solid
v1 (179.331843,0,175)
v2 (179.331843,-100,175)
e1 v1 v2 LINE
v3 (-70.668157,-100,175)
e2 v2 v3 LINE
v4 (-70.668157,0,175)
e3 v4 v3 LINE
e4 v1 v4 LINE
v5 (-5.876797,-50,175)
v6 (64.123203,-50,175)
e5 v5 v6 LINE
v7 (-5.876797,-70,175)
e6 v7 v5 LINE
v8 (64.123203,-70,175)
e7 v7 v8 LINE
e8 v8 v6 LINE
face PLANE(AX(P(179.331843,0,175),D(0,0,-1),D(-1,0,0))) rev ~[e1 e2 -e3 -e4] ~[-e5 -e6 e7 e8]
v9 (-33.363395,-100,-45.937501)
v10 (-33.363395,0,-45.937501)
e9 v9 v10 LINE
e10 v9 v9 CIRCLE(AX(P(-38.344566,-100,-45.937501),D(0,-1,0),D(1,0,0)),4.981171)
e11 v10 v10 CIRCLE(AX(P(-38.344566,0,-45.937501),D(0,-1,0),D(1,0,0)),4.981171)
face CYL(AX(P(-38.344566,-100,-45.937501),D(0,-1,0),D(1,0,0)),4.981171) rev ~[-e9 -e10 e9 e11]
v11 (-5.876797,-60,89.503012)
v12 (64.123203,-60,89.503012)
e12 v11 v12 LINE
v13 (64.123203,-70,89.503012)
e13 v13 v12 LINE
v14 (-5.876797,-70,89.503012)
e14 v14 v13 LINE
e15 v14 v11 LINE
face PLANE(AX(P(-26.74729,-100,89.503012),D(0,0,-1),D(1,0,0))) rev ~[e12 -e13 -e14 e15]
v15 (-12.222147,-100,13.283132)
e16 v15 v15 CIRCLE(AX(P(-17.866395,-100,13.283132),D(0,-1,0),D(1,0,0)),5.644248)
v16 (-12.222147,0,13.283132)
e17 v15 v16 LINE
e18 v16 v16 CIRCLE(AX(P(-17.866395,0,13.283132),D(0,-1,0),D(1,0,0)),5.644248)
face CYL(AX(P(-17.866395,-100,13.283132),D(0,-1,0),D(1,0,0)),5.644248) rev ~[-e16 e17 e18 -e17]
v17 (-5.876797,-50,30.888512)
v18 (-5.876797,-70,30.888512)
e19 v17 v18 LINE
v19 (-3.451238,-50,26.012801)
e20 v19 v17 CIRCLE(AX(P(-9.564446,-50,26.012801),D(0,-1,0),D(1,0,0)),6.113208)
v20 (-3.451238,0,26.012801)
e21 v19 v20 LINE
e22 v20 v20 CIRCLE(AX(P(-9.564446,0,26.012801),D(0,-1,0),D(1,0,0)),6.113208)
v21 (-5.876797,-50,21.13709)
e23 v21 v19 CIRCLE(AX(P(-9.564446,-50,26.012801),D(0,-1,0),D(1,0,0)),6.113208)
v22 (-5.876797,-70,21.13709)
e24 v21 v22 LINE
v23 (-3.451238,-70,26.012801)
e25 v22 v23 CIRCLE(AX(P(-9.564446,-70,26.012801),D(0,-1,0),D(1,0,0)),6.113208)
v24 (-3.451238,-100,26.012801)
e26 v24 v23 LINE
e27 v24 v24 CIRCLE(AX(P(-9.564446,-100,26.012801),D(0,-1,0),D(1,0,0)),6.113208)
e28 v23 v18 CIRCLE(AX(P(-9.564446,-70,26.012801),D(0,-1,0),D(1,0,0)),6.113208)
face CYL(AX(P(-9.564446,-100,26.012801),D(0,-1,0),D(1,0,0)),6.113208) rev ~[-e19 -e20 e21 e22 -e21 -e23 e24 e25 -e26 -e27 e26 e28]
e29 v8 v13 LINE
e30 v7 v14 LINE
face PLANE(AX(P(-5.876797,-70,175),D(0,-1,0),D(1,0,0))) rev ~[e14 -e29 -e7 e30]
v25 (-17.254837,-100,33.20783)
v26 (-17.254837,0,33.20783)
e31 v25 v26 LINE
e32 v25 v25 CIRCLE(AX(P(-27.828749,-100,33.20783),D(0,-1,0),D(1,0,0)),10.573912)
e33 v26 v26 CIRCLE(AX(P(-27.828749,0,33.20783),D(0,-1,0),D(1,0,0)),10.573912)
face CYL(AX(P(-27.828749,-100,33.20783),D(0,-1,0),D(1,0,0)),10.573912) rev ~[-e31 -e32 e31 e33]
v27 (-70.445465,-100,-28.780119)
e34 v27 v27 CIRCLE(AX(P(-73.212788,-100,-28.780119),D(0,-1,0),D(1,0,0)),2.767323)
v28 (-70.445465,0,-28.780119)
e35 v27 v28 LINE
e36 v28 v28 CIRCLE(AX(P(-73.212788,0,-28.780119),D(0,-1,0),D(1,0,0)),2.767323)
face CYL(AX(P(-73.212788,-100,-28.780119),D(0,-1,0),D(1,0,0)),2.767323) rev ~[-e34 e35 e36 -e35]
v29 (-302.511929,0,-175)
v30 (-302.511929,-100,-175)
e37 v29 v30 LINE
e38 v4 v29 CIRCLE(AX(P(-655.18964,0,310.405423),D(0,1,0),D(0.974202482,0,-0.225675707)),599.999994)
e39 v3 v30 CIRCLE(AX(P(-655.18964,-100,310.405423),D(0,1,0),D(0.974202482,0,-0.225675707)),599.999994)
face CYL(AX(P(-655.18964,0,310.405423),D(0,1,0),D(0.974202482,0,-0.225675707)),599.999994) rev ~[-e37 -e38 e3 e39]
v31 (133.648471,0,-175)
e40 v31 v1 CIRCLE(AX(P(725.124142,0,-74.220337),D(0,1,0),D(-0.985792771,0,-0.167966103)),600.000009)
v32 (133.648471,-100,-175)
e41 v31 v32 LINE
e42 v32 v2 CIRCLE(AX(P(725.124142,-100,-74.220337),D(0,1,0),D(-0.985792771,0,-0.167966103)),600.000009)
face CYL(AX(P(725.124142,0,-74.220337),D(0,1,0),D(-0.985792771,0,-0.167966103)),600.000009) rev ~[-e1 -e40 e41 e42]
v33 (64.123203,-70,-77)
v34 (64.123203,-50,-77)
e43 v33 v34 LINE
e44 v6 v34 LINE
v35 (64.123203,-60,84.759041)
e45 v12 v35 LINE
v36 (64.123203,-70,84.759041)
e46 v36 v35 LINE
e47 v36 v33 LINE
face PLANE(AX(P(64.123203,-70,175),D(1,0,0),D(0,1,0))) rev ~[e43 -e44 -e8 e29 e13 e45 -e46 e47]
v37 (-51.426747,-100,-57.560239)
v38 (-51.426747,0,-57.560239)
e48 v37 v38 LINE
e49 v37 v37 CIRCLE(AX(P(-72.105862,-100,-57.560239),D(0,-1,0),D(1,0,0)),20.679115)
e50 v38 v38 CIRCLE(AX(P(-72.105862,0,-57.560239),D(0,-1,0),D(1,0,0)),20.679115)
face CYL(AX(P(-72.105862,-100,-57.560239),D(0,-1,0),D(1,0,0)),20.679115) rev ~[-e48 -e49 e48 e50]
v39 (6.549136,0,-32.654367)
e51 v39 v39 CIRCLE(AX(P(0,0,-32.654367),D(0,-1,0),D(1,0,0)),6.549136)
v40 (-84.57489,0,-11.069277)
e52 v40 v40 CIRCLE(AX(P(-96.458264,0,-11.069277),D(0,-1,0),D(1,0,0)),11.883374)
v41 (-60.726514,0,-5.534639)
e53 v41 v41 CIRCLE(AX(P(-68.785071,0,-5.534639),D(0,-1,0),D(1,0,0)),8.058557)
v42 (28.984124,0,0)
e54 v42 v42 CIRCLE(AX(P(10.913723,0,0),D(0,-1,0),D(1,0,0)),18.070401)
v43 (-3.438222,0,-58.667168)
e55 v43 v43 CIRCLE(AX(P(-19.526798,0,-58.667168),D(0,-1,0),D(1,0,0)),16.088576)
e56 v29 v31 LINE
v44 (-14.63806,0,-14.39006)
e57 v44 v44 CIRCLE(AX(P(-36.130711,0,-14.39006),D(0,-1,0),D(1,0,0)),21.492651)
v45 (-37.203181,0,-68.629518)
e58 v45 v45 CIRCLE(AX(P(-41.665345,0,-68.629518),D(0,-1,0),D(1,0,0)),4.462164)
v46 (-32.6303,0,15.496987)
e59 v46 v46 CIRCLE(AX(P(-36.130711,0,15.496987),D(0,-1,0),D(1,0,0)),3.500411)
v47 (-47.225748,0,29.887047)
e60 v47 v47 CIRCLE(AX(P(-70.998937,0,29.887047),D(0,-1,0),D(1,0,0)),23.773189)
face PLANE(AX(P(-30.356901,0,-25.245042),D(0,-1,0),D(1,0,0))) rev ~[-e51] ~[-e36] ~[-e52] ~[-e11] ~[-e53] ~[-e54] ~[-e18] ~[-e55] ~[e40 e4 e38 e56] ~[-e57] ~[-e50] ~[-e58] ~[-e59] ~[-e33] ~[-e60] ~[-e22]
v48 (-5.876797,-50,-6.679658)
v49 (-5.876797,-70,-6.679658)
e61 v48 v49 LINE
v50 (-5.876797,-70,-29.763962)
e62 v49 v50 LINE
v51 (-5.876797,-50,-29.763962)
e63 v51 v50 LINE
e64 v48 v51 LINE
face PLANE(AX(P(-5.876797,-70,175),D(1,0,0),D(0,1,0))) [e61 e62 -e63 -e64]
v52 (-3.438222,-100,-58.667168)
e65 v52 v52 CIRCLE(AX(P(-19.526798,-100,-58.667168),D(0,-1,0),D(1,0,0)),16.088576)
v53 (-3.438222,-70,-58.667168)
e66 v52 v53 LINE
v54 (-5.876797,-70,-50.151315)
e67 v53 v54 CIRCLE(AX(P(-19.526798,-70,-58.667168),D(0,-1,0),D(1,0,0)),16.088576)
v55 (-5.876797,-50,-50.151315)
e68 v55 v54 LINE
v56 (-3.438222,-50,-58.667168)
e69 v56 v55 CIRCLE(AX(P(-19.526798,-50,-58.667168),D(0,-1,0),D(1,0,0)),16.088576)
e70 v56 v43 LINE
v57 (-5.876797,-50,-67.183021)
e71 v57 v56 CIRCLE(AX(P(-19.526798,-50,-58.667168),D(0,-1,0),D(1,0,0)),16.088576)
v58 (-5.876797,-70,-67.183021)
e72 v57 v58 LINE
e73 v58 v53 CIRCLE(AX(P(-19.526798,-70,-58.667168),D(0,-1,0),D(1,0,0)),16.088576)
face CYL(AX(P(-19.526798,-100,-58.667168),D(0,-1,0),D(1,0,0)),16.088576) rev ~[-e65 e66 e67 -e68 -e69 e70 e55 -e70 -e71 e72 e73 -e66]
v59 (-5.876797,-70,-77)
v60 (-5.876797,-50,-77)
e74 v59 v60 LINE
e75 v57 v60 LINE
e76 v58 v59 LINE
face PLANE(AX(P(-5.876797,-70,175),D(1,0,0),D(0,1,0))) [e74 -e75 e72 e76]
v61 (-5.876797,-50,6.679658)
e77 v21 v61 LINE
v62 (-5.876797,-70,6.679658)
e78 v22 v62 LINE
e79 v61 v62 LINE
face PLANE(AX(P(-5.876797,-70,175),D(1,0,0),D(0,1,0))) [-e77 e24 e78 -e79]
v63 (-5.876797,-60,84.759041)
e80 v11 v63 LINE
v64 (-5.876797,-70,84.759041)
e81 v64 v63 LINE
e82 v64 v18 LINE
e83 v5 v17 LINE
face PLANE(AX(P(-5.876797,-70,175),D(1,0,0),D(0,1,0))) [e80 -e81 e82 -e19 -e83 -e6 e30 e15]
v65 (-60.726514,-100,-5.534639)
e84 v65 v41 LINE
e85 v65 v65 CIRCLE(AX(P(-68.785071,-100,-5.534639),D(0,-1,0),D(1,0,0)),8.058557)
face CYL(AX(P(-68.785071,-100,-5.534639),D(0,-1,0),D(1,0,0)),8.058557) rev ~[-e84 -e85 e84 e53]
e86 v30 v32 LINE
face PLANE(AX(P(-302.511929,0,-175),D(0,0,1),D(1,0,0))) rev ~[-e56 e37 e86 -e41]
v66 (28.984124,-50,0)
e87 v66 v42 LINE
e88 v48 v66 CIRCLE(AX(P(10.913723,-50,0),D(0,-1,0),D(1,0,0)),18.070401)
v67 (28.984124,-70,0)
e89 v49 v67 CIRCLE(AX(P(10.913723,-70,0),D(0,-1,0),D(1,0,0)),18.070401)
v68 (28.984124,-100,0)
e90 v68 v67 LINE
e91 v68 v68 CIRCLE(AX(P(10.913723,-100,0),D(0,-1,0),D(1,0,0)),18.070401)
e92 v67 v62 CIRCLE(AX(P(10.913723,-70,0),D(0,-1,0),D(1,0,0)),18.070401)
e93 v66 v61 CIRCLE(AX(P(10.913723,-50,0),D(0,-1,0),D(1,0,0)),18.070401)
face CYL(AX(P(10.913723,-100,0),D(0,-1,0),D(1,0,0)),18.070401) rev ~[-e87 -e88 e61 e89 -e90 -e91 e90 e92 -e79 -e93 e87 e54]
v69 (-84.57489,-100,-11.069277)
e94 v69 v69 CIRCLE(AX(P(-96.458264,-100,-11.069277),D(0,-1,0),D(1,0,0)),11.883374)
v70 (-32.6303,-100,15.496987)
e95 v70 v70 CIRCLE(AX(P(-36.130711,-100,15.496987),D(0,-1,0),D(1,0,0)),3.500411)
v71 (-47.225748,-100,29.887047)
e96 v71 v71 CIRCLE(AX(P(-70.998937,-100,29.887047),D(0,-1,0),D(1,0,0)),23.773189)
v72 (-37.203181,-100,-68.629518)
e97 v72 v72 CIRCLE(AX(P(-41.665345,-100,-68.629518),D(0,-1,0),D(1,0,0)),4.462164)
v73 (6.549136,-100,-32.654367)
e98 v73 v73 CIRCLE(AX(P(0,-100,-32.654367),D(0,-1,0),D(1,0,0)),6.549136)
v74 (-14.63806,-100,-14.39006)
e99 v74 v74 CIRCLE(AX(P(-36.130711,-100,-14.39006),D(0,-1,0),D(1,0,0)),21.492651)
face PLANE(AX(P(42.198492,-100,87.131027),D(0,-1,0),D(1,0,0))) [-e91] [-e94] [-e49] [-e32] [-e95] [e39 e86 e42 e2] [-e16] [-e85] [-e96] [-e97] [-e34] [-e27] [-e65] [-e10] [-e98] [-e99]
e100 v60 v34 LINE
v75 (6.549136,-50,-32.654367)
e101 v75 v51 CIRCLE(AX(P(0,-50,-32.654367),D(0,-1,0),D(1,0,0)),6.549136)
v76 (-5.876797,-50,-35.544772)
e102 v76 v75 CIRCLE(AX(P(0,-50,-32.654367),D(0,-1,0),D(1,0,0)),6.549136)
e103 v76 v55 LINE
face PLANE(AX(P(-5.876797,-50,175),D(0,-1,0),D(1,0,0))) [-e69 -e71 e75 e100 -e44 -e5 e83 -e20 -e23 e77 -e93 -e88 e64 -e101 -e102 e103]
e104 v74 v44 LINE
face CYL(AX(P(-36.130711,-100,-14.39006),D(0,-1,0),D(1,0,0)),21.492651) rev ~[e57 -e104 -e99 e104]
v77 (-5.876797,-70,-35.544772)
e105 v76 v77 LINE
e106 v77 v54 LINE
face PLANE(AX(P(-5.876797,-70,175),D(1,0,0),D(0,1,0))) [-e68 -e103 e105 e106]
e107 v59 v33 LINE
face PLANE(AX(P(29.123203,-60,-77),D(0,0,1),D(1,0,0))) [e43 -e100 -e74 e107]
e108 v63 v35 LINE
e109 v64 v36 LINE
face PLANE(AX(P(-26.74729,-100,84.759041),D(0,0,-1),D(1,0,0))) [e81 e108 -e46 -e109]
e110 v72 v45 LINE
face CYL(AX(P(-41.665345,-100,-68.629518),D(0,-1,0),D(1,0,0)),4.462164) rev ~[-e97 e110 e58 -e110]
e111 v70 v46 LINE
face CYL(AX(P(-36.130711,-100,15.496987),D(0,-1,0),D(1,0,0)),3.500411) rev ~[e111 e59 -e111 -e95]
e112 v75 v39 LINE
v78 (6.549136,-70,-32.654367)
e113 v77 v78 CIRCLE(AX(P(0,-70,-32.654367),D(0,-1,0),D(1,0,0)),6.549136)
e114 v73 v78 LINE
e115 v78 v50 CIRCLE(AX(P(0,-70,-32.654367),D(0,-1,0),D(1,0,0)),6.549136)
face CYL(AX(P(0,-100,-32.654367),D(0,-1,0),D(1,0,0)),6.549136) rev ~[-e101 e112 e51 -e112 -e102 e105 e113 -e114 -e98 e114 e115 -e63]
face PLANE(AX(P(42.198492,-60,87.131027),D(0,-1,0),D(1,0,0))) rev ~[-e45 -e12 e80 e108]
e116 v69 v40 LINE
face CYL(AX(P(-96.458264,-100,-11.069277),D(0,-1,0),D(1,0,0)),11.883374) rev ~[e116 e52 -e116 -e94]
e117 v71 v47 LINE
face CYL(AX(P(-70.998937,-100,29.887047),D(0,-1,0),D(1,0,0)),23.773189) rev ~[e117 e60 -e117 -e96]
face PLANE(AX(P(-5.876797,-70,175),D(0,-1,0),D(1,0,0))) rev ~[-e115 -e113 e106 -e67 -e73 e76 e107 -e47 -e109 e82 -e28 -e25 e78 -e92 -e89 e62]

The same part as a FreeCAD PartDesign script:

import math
import FreeCAD as App
import Part
import Sketcher
Q = App.Units.Quantity


def add_polygon(sketch, points):
    """Adds a closed chain of lines whose ends are joined by coincident constraints."""
    first, n = sketch.GeometryCount, len(points)
    for a, b in zip(points, points[1:] + points[:1]):
        sketch.addGeometry(Part.LineSegment(App.Vector(*a, 0), App.Vector(*b, 0)), False)
    for i in range(n):
        sketch.addConstraint(Sketcher.Constraint("Coincident", first + i, 2, first + (i + 1) % n, 1))

doc = App.newDocument("Part")
body = doc.addObject("PartDesign::Body", "Body")

# Sketch on XZ plane
sketch1 = body.newObject("Sketcher::SketchObject", "Sketch")
sketch1.AttachmentSupport = (doc.getObject("XZ_Plane"), [""])
sketch1.MapMode = "FlatFace"
sketch1.addGeometry(Part.LineSegment(App.Vector(179.331843, 175, 0), App.Vector(-70.668157, 175, 0)), False)
sketch1.addGeometry(Part.ArcOfCircle(Part.Circle(App.Vector(-655.18964, 310.405423, 0), App.Vector(0, 0, 1), 599.999994), math.radians(-53.999225), math.radians(-13.042615)), False)
sketch1.addGeometry(Part.LineSegment(App.Vector(-302.511929, -175, 0), App.Vector(133.648471, -175, 0)), False)
sketch1.addGeometry(Part.ArcOfCircle(Part.Circle(App.Vector(725.124142, -74.220337, 0), App.Vector(0, 0, 1), 600.000009), math.radians(155.457556), math.radians(189.669585)), False)
sketch1.addConstraint(Sketcher.Constraint("Coincident", 0, 2, 1, 2))
sketch1.addConstraint(Sketcher.Constraint("Coincident", 1, 1, 2, 1))
sketch1.addConstraint(Sketcher.Constraint("Coincident", 2, 2, 3, 2))
sketch1.addConstraint(Sketcher.Constraint("Coincident", 3, 1, 0, 1))
sketch1.addConstraint(Sketcher.Constraint("Horizontal", 0))
sketch1.addConstraint(Sketcher.Constraint("Horizontal", 2))
sketch1.addConstraint(Sketcher.Constraint("DistanceX", 0, 2, 0, 1, Q("250 mm")))
sketch1.addConstraint(Sketcher.Constraint("DistanceY", -1, 1, 0, 2, Q("175 mm")))
sketch1.addConstraint(Sketcher.Constraint("DistanceY", 2, 2, -1, 1, Q("175 mm")))
sketch1.addConstraint(Sketcher.Constraint("Radius", 3, Q("600.000009 mm")))
sketch1.addConstraint(Sketcher.Constraint("DistanceX", 2, 1, 2, 2, Q("436.1604 mm")))
sketch1.addConstraint(Sketcher.Constraint("Radius", 1, Q("599.999994 mm")))
sketch1.addConstraint(Sketcher.Constraint("DistanceX", 0, 2, 3, 3, Q("795.792299 mm")))
sketch1.addConstraint(Sketcher.Constraint("DistanceX", 1, 3, -1, 1, Q("655.18964 mm")))
pad1 = body.newObject("PartDesign::Pad", "Pad")
pad1.Profile = sketch1
pad1.Length = 100

# Sketch on XY plane
sketch2 = body.newObject("Sketcher::SketchObject", "Sketch001")
sketch2.AttachmentSupport = (doc.getObject("XY_Plane"), [""])
sketch2.MapMode = "FlatFace"
sketch2.AttachmentOffset = App.Placement(App.Vector(0, 0, 175), App.Rotation())
add_polygon(sketch2, [(-5.876797, -50), (-5.876797, -70), (64.123203, -70), (64.123203, -50)])  # lines 0-3
sketch2.addConstraint(Sketcher.Constraint("Vertical", 0))
sketch2.addConstraint(Sketcher.Constraint("Horizontal", 1))
sketch2.addConstraint(Sketcher.Constraint("Vertical", 2))
sketch2.addConstraint(Sketcher.Constraint("Horizontal", 3))
sketch2.addConstraint(Sketcher.Constraint("DistanceX", 1, 1, 1, 2, Q("70 mm")))
sketch2.addConstraint(Sketcher.Constraint("DistanceY", 0, 2, 0, 1, Q("20 mm")))
sketch2.addConstraint(Sketcher.Constraint("DistanceY", 0, 2, -1, 1, Q("70 mm")))
sketch2.addConstraint(Sketcher.Constraint("DistanceX", 0, 2, -1, 1, Q("5.876797 mm")))
pocket1 = body.newObject("PartDesign::Pocket", "Pocket")
pocket1.Profile = sketch2
pocket1.Length = 252

# Sketch on XZ plane
sketch3 = body.newObject("Sketcher::SketchObject", "Sketch002")
sketch3.AttachmentSupport = (doc.getObject("XZ_Plane"), [""])
sketch3.MapMode = "FlatFace"
sketch3.AttachmentOffset = App.Placement(App.Vector(0, 0, 100), App.Rotation())
add_polygon(sketch3, [(-26.74729, 89.503012), (-26.74729, 84.759041), (111.144274, 84.759041), (111.144274, 89.503012)])  # lines 0-3
sketch3.addConstraint(Sketcher.Constraint("Vertical", 0))
sketch3.addConstraint(Sketcher.Constraint("Horizontal", 1))
sketch3.addConstraint(Sketcher.Constraint("Vertical", 2))
sketch3.addConstraint(Sketcher.Constraint("Horizontal", 3))
sketch3.addConstraint(Sketcher.Constraint("DistanceY", 0, 2, 0, 1, Q("4.743971 mm")))
sketch3.addConstraint(Sketcher.Constraint("DistanceX", 1, 1, 1, 2, Q("137.891564 mm")))
sketch3.addConstraint(Sketcher.Constraint("DistanceX", 0, 2, -1, 1, Q("26.74729 mm")))
sketch3.addConstraint(Sketcher.Constraint("DistanceY", -1, 1, 0, 2, Q("84.759041 mm")))
pad2 = body.newObject("PartDesign::Pad", "Pad001")
pad2.Profile = sketch3
pad2.Length = 40
pad2.Reversed = True

# Sketch on XZ plane
sketch4 = body.newObject("Sketcher::SketchObject", "Sketch003")
sketch4.AttachmentSupport = (doc.getObject("XZ_Plane"), [""])
sketch4.MapMode = "FlatFace"
sketch4.AttachmentOffset = App.Placement(App.Vector(0, 0, 100), App.Rotation())
sketch4.addGeometry(Part.Circle(App.Vector(-70.998937, 29.887047, 0), App.Vector(0, 0, 1), 23.773189), False)
sketch4.addGeometry(Part.Circle(App.Vector(-36.130711, -14.39006, 0), App.Vector(0, 0, 1), 21.492651), False)
sketch4.addGeometry(Part.Circle(App.Vector(-72.105862, -57.560239, 0), App.Vector(0, 0, 1), 20.679115), False)
sketch4.addGeometry(Part.Circle(App.Vector(-96.458264, -11.069277, 0), App.Vector(0, 0, 1), 11.883374), False)
sketch4.addGeometry(Part.Circle(App.Vector(0, -32.654367, 0), App.Vector(0, 0, 1), 6.549136), False)
sketch4.addGeometry(Part.Circle(App.Vector(-19.526798, -58.667168, 0), App.Vector(0, 0, 1), 16.088576), False)
sketch4.addGeometry(Part.Circle(App.Vector(10.913723, 0, 0), App.Vector(0, 0, 1), 18.070401), False)
sketch4.addGeometry(Part.Circle(App.Vector(-27.828749, 33.20783, 0), App.Vector(0, 0, 1), 10.573912), False)
sketch4.addGeometry(Part.Circle(App.Vector(-9.564446, 26.012801, 0), App.Vector(0, 0, 1), 6.113208), False)
sketch4.addGeometry(Part.Circle(App.Vector(-68.785071, -5.534639, 0), App.Vector(0, 0, 1), 8.058557), False)
sketch4.addGeometry(Part.Circle(App.Vector(-73.212788, -28.780119, 0), App.Vector(0, 0, 1), 2.767323), False)
sketch4.addGeometry(Part.Circle(App.Vector(-38.344566, -45.937501, 0), App.Vector(0, 0, 1), 4.981171), False)
sketch4.addGeometry(Part.Circle(App.Vector(-41.665345, -68.629518, 0), App.Vector(0, 0, 1), 4.462164), False)
sketch4.addGeometry(Part.Circle(App.Vector(-17.866395, 13.283132, 0), App.Vector(0, 0, 1), 5.644248), False)
sketch4.addGeometry(Part.Circle(App.Vector(-36.130711, 15.496987, 0), App.Vector(0, 0, 1), 3.500411), False)
sketch4.addConstraint(Sketcher.Constraint("PointOnObject", 4, 3, -2))
sketch4.addConstraint(Sketcher.Constraint("PointOnObject", 6, 3, -1))
sketch4.addConstraint(Sketcher.Constraint("Vertical", 1, 3, 14, 3))
sketch4.addConstraint(Sketcher.Constraint("Diameter", 1, Q("42.985302 mm")))
sketch4.addConstraint(Sketcher.Constraint("Diameter", 2, Q("41.35823 mm")))
sketch4.addConstraint(Sketcher.Constraint("Diameter", 3, Q("23.766748 mm")))
sketch4.addConstraint(Sketcher.Constraint("Diameter", 0, Q("47.546378 mm")))
sketch4.addConstraint(Sketcher.Constraint("Diameter", 4, Q("13.098272 mm")))
sketch4.addConstraint(Sketcher.Constraint("Diameter", 5, Q("32.177152 mm")))
sketch4.addConstraint(Sketcher.Constraint("Diameter", 6, Q("36.140802 mm")))
sketch4.addConstraint(Sketcher.Constraint("Diameter", 7, Q("21.147824 mm")))
sketch4.addConstraint(Sketcher.Constraint("Diameter", 8, Q("12.226416 mm")))
sketch4.addConstraint(Sketcher.Constraint("Diameter", 9, Q("16.117114 mm")))
sketch4.addConstraint(Sketcher.Constraint("Diameter", 10, Q("5.534646 mm")))
sketch4.addConstraint(Sketcher.Constraint("Diameter", 11, Q("9.962342 mm")))
sketch4.addConstraint(Sketcher.Constraint("Diameter", 12, Q("8.924328 mm")))
sketch4.addConstraint(Sketcher.Constraint("Diameter", 13, Q("11.288496 mm")))
sketch4.addConstraint(Sketcher.Constraint("Diameter", 14, Q("7.000822 mm")))
sketch4.addConstraint(Sketcher.Constraint("DistanceY", -1, 1, 8, 3, Q("26.012801 mm")))
sketch4.addConstraint(Sketcher.Constraint("DistanceY", 11, 3, -1, 1, Q("45.937501 mm")))
sketch4.addConstraint(Sketcher.Constraint("DistanceX", 3, 3, 2, 3, Q("24.352402 mm")))
sketch4.addConstraint(Sketcher.Constraint("DistanceY", 5, 3, 4, 3, Q("26.012801 mm")))
sketch4.addConstraint(Sketcher.Constraint("DistanceY", 2, 3, 9, 3, Q("52.0256 mm")))
sketch4.addConstraint(Sketcher.Constraint("DistanceY", 12, 3, 10, 3, Q("39.849399 mm")))
sketch4.addConstraint(Sketcher.Constraint("DistanceY", 4, 3, 13, 3, Q("45.937499 mm")))
sketch4.addConstraint(Sketcher.Constraint("DistanceX", 1, 3, -1, 1, Q("36.130711 mm")))
sketch4.addConstraint(Sketcher.Constraint("DistanceY", 1, 3, -1, 1, Q("14.39006 mm")))
sketch4.addConstraint(Sketcher.Constraint("DistanceX", 2, 3, -1, 1, Q("72.105862 mm")))
sketch4.addConstraint(Sketcher.Constraint("DistanceY", 2, 3, -1, 1, Q("57.560239 mm")))
sketch4.addConstraint(Sketcher.Constraint("DistanceX", 7, 3, -1, 1, Q("27.828749 mm")))
sketch4.addConstraint(Sketcher.Constraint("DistanceY", -1, 1, 7, 3, Q("33.20783 mm")))
sketch4.addConstraint(Sketcher.Constraint("DistanceX", 9, 3, -1, 1, Q("68.785071 mm")))
sketch4.addConstraint(Sketcher.Constraint("DistanceX", 10, 3, -1, 1, Q("73.212788 mm")))
sketch4.addConstraint(Sketcher.Constraint("DistanceY", 10, 3, -1, 1, Q("28.780119 mm")))
sketch4.addConstraint(Sketcher.Constraint("DistanceY", 4, 3, 3, 3, Q("21.58509 mm")))
sketch4.addConstraint(Sketcher.Constraint("DistanceY", 5, 3, 2, 3, Q("1.106929 mm")))
sketch4.addConstraint(Sketcher.Constraint("DistanceX", 0, 3, 5, 3, Q("51.472139 mm")))
sketch4.addConstraint(Sketcher.Constraint("DistanceX", 5, 3, 6, 3, Q("30.440521 mm")))
sketch4.addConstraint(Sketcher.Constraint("DistanceX", 8, 3, 6, 3, Q("20.478169 mm")))
sketch4.addConstraint(Sketcher.Constraint("DistanceX", 10, 3, 0, 3, Q("2.213851 mm")))
sketch4.addConstraint(Sketcher.Constraint("DistanceX", 11, 3, 5, 3, Q("18.817768 mm")))
sketch4.addConstraint(Sketcher.Constraint("DistanceX", 12, 3, 11, 3, Q("3.320779 mm")))
sketch4.addConstraint(Sketcher.Constraint("DistanceX", 13, 3, 8, 3, Q("8.301949 mm")))
sketch4.addConstraint(Sketcher.Constraint("DistanceY", 14, 3, 0, 3, Q("14.39006 mm")))
sketch4.addConstraint(Sketcher.Constraint("DistanceY", -1, 1, 0, 3, Q("29.887047 mm")))
pocket2 = body.newObject("PartDesign::Pocket", "Pocket001")
pocket2.Profile = sketch4
pocket2.Length = 357

doc.recompute()
